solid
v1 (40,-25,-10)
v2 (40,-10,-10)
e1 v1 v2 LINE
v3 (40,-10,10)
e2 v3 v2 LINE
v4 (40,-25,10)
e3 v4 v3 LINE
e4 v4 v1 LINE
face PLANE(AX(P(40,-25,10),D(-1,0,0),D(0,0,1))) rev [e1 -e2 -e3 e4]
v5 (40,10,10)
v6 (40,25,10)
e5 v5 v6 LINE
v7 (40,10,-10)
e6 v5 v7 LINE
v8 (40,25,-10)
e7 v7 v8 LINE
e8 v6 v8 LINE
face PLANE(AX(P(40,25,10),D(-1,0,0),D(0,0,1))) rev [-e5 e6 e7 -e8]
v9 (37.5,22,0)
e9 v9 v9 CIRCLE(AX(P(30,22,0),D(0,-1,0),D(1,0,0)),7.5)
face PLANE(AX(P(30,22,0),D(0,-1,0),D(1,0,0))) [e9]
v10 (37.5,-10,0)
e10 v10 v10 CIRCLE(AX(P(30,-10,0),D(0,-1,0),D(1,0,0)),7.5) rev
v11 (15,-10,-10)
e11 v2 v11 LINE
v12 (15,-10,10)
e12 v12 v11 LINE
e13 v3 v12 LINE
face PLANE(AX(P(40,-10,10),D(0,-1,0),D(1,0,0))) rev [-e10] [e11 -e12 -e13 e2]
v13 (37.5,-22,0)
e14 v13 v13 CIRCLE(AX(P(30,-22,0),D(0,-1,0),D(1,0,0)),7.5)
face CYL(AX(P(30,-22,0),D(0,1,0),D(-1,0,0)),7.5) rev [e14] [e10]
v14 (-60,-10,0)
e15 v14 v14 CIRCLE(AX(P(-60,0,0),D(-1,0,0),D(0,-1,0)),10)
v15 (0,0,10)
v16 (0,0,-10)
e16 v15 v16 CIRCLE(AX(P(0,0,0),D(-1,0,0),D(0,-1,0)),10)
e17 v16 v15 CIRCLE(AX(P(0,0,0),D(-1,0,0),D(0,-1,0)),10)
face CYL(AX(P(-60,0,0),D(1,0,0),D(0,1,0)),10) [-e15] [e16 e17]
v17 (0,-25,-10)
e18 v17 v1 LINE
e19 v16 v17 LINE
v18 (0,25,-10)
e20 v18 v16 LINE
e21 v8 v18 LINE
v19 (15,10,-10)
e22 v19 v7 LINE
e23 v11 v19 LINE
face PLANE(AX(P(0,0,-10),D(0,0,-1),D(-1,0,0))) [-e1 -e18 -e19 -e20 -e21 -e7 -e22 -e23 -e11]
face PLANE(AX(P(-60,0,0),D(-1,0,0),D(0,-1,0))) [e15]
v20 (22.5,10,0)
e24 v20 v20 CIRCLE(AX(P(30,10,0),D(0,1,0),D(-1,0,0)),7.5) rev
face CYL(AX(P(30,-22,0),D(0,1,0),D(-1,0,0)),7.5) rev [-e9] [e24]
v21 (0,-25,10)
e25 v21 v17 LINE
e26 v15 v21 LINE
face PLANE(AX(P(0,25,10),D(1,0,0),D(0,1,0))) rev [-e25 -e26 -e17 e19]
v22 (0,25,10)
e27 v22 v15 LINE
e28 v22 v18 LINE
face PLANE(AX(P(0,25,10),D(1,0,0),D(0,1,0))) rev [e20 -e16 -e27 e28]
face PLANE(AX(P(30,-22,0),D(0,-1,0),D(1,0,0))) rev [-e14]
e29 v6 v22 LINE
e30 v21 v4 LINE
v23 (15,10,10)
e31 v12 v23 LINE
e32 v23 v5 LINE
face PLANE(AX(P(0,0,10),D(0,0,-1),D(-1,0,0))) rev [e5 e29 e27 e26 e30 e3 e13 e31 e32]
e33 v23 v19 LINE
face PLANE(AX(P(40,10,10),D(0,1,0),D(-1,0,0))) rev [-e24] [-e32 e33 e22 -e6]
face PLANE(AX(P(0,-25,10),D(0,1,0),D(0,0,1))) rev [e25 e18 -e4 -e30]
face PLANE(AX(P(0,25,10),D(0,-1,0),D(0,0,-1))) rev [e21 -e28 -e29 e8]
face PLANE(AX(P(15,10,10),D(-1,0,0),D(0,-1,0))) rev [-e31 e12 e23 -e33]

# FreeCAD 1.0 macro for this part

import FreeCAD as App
import Part
import Sketcher

V = App.Vector

doc = App.newDocument("Part")
body = doc.addObject("PartDesign::Body", "Body")

# Sketch on XY plane
sketch1 = body.newObject("Sketcher::SketchObject", "Sketch")
sketch1.AttachmentSupport = (doc.getObject("XY_Plane"), [""])
sketch1.MapMode = "FlatFace"
sketch1.addGeometry([
    Part.LineSegment(V(0, 25, 0), V(0, -25, 0)),  # 0
    Part.LineSegment(V(0, -25, 0), V(40, -25, 0)),  # 1
    Part.LineSegment(V(40, -25, 0), V(40, -10, 0)),  # 2
    Part.LineSegment(V(40, -10, 0), V(15, -10, 0)),  # 3
    Part.LineSegment(V(15, -10, 0), V(15, 10, 0)),  # 4
    Part.LineSegment(V(15, 10, 0), V(40, 10, 0)),  # 5
    Part.LineSegment(V(40, 10, 0), V(40, 25, 0)),  # 6
    Part.LineSegment(V(40, 25, 0), V(0, 25, 0)),  # 7
], False)
sketch1.addConstraint([
    Sketcher.Constraint("Coincident", 0, 2, 1, 1),
    Sketcher.Constraint("Coincident", 1, 2, 2, 1),
    Sketcher.Constraint("Coincident", 2, 2, 3, 1),
    Sketcher.Constraint("Coincident", 3, 2, 4, 1),
    Sketcher.Constraint("Coincident", 4, 2, 5, 1),
    Sketcher.Constraint("Coincident", 5, 2, 6, 1),
    Sketcher.Constraint("Coincident", 6, 2, 7, 1),
    Sketcher.Constraint("Coincident", 7, 2, 0, 1),
    Sketcher.Constraint("Vertical", 0),
    Sketcher.Constraint("Horizontal", 1),
    Sketcher.Constraint("Vertical", 2),
    Sketcher.Constraint("Horizontal", 3),
    Sketcher.Constraint("Vertical", 4),
    Sketcher.Constraint("Horizontal", 5),
    Sketcher.Constraint("Vertical", 6),
    Sketcher.Constraint("Horizontal", 7),
    Sketcher.Constraint("Symmetric", 0, 2, 7, 2, -1, 1),
    Sketcher.Constraint("Symmetric", 2, 2, 5, 2, -1),
    Sketcher.Constraint("DistanceX", 1, 1, 1, 2, 40.0),
    Sketcher.Constraint("DistanceX", 3, 2, 3, 1, 25.0),
    Sketcher.Constraint("DistanceY", 0, 2, 0, 1, 50.0),
    Sketcher.Constraint("DistanceY", 2, 1, 2, 2, 15.0),
])
pad1 = body.newObject("PartDesign::Pad", "Pad")
pad1.Profile = sketch1
pad1.Length = 20
pad1.Midplane = True

# Sketch on YZ plane
sketch2 = body.newObject("Sketcher::SketchObject", "Sketch001")
sketch2.AttachmentSupport = (doc.getObject("YZ_Plane"), [""])
sketch2.MapMode = "FlatFace"
sketch2.addGeometry(Part.Circle(V(0, 0, 0), V(0, 0, 1), 10), False)
sketch2.addConstraint([
    Sketcher.Constraint("Coincident", 0, 3, -1, 1),
    Sketcher.Constraint("Diameter", 0, 20.0),
])
pad2 = body.newObject("PartDesign::Pad", "Pad001")
pad2.Profile = sketch2
pad2.Length = 60
pad2.Reversed = True

# Sketch on XZ plane
sketch3 = body.newObject("Sketcher::SketchObject", "Sketch002")
sketch3.AttachmentSupport = (doc.getObject("XZ_Plane"), [""])
sketch3.MapMode = "FlatFace"
sketch3.AttachmentOffset = App.Placement(V(0, 0, -10), App.Rotation())
sketch3.addGeometry(Part.Circle(V(30, 0, 0), V(0, 0, 1), 8), False)
sketch3.addConstraint([
    Sketcher.Constraint("PointOnObject", 0, 3, -1),
    Sketcher.Constraint("Diameter", 0, 15.0),
    Sketcher.Constraint("DistanceX", -1, 1, 0, 3, 30.0),
])
pocket1 = body.newObject("PartDesign::Pocket", "Pocket")
pocket1.Profile = sketch3
pocket1.Type = "TwoLengths"
pocket1.Length = 32
pocket1.Length2 = 12
pocket1.Reversed = True

doc.recompute()
